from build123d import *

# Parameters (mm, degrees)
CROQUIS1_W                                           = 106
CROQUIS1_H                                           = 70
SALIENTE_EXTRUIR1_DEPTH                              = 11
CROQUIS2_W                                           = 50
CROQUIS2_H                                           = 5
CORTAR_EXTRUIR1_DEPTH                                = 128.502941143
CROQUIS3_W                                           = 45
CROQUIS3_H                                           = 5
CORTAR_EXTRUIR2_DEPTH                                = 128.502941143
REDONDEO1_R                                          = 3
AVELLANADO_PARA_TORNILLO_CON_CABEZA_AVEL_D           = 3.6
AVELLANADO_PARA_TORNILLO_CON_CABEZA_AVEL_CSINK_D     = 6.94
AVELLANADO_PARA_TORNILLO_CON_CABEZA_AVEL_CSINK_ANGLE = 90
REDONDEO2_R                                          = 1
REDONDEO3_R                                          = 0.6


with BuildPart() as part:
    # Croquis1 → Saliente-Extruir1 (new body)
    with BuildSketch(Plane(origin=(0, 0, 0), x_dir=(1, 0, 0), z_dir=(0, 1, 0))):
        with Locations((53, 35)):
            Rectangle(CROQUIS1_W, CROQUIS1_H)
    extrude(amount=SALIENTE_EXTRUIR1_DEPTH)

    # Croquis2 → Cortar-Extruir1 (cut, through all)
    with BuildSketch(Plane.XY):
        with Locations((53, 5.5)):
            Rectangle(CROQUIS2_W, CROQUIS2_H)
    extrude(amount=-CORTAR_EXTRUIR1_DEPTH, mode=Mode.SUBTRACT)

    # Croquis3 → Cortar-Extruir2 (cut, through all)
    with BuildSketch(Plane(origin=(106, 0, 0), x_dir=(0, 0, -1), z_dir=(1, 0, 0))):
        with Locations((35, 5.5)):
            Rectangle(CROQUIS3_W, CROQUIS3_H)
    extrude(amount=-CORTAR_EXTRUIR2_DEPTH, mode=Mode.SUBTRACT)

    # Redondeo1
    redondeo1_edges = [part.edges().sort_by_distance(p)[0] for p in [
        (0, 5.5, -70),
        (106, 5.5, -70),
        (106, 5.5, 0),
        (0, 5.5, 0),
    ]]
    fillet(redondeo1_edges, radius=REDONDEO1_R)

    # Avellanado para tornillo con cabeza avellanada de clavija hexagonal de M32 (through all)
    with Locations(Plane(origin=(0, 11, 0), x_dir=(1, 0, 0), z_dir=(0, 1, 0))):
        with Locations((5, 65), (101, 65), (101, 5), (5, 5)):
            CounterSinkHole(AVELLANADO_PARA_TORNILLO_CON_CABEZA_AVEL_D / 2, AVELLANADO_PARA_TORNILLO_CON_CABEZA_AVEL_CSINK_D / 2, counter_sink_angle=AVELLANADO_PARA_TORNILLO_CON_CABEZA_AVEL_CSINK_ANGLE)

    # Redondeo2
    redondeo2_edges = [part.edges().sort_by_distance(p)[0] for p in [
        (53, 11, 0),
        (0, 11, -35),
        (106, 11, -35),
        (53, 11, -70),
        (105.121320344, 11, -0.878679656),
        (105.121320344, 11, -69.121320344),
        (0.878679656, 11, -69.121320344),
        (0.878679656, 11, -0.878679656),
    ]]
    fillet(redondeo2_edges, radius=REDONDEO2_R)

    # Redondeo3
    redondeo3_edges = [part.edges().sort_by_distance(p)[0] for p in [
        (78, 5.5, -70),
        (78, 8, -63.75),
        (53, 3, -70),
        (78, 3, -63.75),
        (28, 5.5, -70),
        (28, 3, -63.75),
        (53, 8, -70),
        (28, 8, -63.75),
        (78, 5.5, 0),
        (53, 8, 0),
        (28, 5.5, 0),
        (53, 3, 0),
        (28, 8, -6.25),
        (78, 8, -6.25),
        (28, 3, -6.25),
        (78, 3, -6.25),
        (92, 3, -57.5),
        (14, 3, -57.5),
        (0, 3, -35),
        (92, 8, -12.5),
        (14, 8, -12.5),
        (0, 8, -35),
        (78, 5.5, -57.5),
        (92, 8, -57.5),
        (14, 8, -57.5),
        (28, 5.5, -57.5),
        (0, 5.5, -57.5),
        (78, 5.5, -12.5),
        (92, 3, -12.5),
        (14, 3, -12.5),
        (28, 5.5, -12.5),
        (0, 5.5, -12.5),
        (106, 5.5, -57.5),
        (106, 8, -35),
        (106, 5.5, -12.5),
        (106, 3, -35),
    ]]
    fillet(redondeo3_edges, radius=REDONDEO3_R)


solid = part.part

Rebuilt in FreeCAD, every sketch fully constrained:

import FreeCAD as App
import Part
import Sketcher

V = App.Vector


def edges_at(feature, points):
    """Names of the edges that pass closest to the given points."""
    edges = feature.Shape.Edges
    near = lambda p: min(range(len(edges)), key=lambda i: edges[i].distToShape(Part.Vertex(*p))[0])
    return sorted({f"Edge{near(p) + 1}" for p in points})

doc = App.newDocument("Part")
body = doc.addObject("PartDesign::Body", "Body")

sketch1 = doc.addObject("Sketcher::SketchObject", "Sketch")
body.addObject(sketch1)
sketch1.AttachmentSupport = (doc.XZ_Plane, [""])
sketch1.MapMode = "FlatFace"
sketch1.addGeometry(Part.LineSegment(V(0, -70, 0), V(0, 0, 0)), False)
sketch1.addGeometry(Part.LineSegment(V(0, 0, 0), V(106, 0, 0)), False)
sketch1.addGeometry(Part.LineSegment(V(106, 0, 0), V(106, -70, 0)), False)
sketch1.addGeometry(Part.LineSegment(V(106, -70, 0), V(0, -70, 0)), False)
sketch1.addConstraint(Sketcher.Constraint("Coincident", 0, 2, 1, 1))
sketch1.addConstraint(Sketcher.Constraint("Coincident", 1, 2, 2, 1))
sketch1.addConstraint(Sketcher.Constraint("Coincident", 2, 2, 3, 1))
sketch1.addConstraint(Sketcher.Constraint("Coincident", 3, 2, 0, 1))
sketch1.addConstraint(Sketcher.Constraint("Vertical", 0))
sketch1.addConstraint(Sketcher.Constraint("Horizontal", 1))
sketch1.addConstraint(Sketcher.Constraint("Vertical", 2))
sketch1.addConstraint(Sketcher.Constraint("Horizontal", 3))
sketch1.addConstraint(Sketcher.Constraint("Coincident", 0, 2, -1, 1))
sketch1.addConstraint(Sketcher.Constraint("DistanceX", 1, 1, 1, 2, 106.0))
sketch1.addConstraint(Sketcher.Constraint("DistanceY", 0, 1, 0, 2, 70.0))
pad1 = doc.addObject("PartDesign::Pad", "Pad")
body.addObject(pad1)
pad1.Profile = sketch1
pad1.Length = 11
pad1.Reversed = True

sketch2 = doc.addObject("Sketcher::SketchObject", "Sketch001")
body.addObject(sketch2)
sketch2.AttachmentSupport = (doc.XY_Plane, [""])
sketch2.MapMode = "FlatFace"
sketch2.addGeometry(Part.LineSegment(V(28, 8, 0), V(28, 3, 0)), False)
sketch2.addGeometry(Part.LineSegment(V(28, 3, 0), V(78, 3, 0)), False)
sketch2.addGeometry(Part.LineSegment(V(78, 3, 0), V(78, 8, 0)), False)
sketch2.addGeometry(Part.LineSegment(V(78, 8, 0), V(28, 8, 0)), False)
sketch2.addConstraint(Sketcher.Constraint("Coincident", 0, 2, 1, 1))
sketch2.addConstraint(Sketcher.Constraint("Coincident", 1, 2, 2, 1))
sketch2.addConstraint(Sketcher.Constraint("Coincident", 2, 2, 3, 1))
sketch2.addConstraint(Sketcher.Constraint("Coincident", 3, 2, 0, 1))
sketch2.addConstraint(Sketcher.Constraint("Vertical", 0))
sketch2.addConstraint(Sketcher.Constraint("Horizontal", 1))
sketch2.addConstraint(Sketcher.Constraint("Vertical", 2))
sketch2.addConstraint(Sketcher.Constraint("Horizontal", 3))
sketch2.addConstraint(Sketcher.Constraint("DistanceX", 1, 1, 1, 2, 50.0))
sketch2.addConstraint(Sketcher.Constraint("DistanceY", 0, 2, 0, 1, 5.0))
sketch2.addConstraint(Sketcher.Constraint("DistanceX", -1, 1, 0, 2, 28.0))
sketch2.addConstraint(Sketcher.Constraint("DistanceY", -1, 1, 0, 2, 3.0))
pocket1 = doc.addObject("PartDesign::Pocket", "Pocket")
body.addObject(pocket1)
pocket1.Profile = sketch2
pocket1.Type = "ThroughAll"

sketch3 = doc.addObject("Sketcher::SketchObject", "Sketch002")
body.addObject(sketch3)
sketch3.AttachmentSupport = (doc.YZ_Plane, [""])
sketch3.MapMode = "FlatFace"
sketch3.AttachmentOffset = App.Placement(V(0, 0, 106), App.Rotation())
sketch3.addGeometry(Part.LineSegment(V(8, -12, 0), V(3, -12, 0)), False)
sketch3.addGeometry(Part.LineSegment(V(3, -12, 0), V(3, -58, 0)), False)
sketch3.addGeometry(Part.LineSegment(V(3, -58, 0), V(8, -58, 0)), False)
sketch3.addGeometry(Part.LineSegment(V(8, -58, 0), V(8, -12, 0)), False)
sketch3.addConstraint(Sketcher.Constraint("Coincident", 0, 2, 1, 1))
sketch3.addConstraint(Sketcher.Constraint("Coincident", 1, 2, 2, 1))
sketch3.addConstraint(Sketcher.Constraint("Coincident", 2, 2, 3, 1))
sketch3.addConstraint(Sketcher.Constraint("Coincident", 3, 2, 0, 1))
sketch3.addConstraint(Sketcher.Constraint("Horizontal", 0))
sketch3.addConstraint(Sketcher.Constraint("Vertical", 1))
sketch3.addConstraint(Sketcher.Constraint("Horizontal", 2))
sketch3.addConstraint(Sketcher.Constraint("Vertical", 3))
sketch3.addConstraint(Sketcher.Constraint("DistanceX", 0, 2, 0, 1, 5.0))
sketch3.addConstraint(Sketcher.Constraint("DistanceY", 1, 2, 1, 1, 45.0))
sketch3.addConstraint(Sketcher.Constraint("DistanceX", -1, 1, 0, 2, 3.0))
sketch3.addConstraint(Sketcher.Constraint("DistanceY", 0, 2, -1, 1, 12.5))
pocket2 = doc.addObject("PartDesign::Pocket", "Pocket001")
body.addObject(pocket2)
pocket2.Profile = sketch3
pocket2.Type = "ThroughAll"
doc.recompute()

fillet = doc.addObject("PartDesign::Fillet", "Fillet")
body.addObject(fillet)
fillet.Base = (pocket2, edges_at(pocket2, [
    (0, 5.5, -70),
    (106, 5.5, -70),
    (106, 5.5, 0),
    (0, 5.5, 0),
]))
fillet.Radius = 3

sketch4 = doc.addObject("Sketcher::SketchObject", "Sketch003")
body.addObject(sketch4)
sketch4.AttachmentSupport = (doc.XZ_Plane, [""])
sketch4.MapMode = "FlatFace"
sketch4.AttachmentOffset = App.Placement(V(0, 0, -11), App.Rotation())
sketch4.addGeometry(Part.Circle(V(5, -65, 0), V(0, 0, 1), 1.8), False)
sketch4.addGeometry(Part.Circle(V(101, -65, 0), V(0, 0, 1), 1.8), False)
sketch4.addGeometry(Part.Circle(V(101, -5, 0), V(0, 0, 1), 1.8), False)
sketch4.addGeometry(Part.Circle(V(5, -5, 0), V(0, 0, 1), 1.8), False)
sketch4.addConstraint(Sketcher.Constraint("Equal", 0, 1))
sketch4.addConstraint(Sketcher.Constraint("Equal", 1, 2))
sketch4.addConstraint(Sketcher.Constraint("Equal", 2, 3))
sketch4.addConstraint(Sketcher.Constraint("Horizontal", 0, 3, 1, 3))
sketch4.addConstraint(Sketcher.Constraint("Horizontal", 2, 3, 3, 3))
sketch4.addConstraint(Sketcher.Constraint("Vertical", 1, 3, 2, 3))
sketch4.addConstraint(Sketcher.Constraint("Vertical", 0, 3, 3, 3))
sketch4.addConstraint(Sketcher.Constraint("Diameter", 0, 3.6))
sketch4.addConstraint(Sketcher.Constraint("DistanceX", -1, 1, 0, 3, 5.0))
sketch4.addConstraint(Sketcher.Constraint("DistanceY", 0, 3, -1, 1, 65.0))
sketch4.addConstraint(Sketcher.Constraint("DistanceX", -1, 1, 1, 3, 101.0))
sketch4.addConstraint(Sketcher.Constraint("DistanceY", 2, 3, -1, 1, 5.0))
doc.recompute()
hole = doc.addObject("PartDesign::Hole", "Hole")
body.addObject(hole)
hole.Profile = sketch4
hole.ThreadType = "None"
hole.Diameter = 3.6
hole.DepthType = "ThroughAll"
hole.HoleCutType = "Countersink"
hole.HoleCutDiameter = 6.94
hole.HoleCutCountersinkAngle = 90
hole.Reversed = True
doc.recompute()

fillet2 = doc.addObject("PartDesign::Fillet", "Fillet001")
body.addObject(fillet2)
fillet2.Base = (hole, edges_at(hole, [
    (53, 11, 0),
    (0, 11, -35),
    (106, 11, -35),
    (53, 11, -70),
    (105.121, 11, -0.879),
    (105.121, 11, -69.121),
    (0.879, 11, -69.121),
    (0.879, 11, -0.879),
]))
fillet2.Radius = 1
doc.recompute()

fillet3 = doc.addObject("PartDesign::Fillet", "Fillet002")
body.addObject(fillet3)
fillet3.Base = (fillet2, edges_at(fillet2, [
    (78, 5.5, -70),
    (78, 8, -63.75),
    (53, 3, -70),
    (78, 3, -63.75),
    (28, 5.5, -70),
    (28, 3, -63.75),
    (53, 8, -70),
    (28, 8, -63.75),
    (78, 5.5, 0),
    (53, 8, 0),
    (28, 5.5, 0),
    (53, 3, 0),
    (28, 8, -6.25),
    (78, 8, -6.25),
    (28, 3, -6.25),
    (78, 3, -6.25),
    (92, 3, -57.5),
    (14, 3, -57.5),
    (0, 3, -35),
    (92, 8, -12.5),
    (14, 8, -12.5),
    (0, 8, -35),
    (78, 5.5, -57.5),
    (92, 8, -57.5),
    (14, 8, -57.5),
    (28, 5.5, -57.5),
    (0, 5.5, -57.5),
    (78, 5.5, -12.5),
    (92, 3, -12.5),
    (14, 3, -12.5),
    (28, 5.5, -12.5),
    (0, 5.5, -12.5),
    (106, 5.5, -57.5),
    (106, 8, -35),
    (106, 5.5, -12.5),
    (106, 3, -35),
]))
fillet3.Radius = 0.6

doc.recompute()
